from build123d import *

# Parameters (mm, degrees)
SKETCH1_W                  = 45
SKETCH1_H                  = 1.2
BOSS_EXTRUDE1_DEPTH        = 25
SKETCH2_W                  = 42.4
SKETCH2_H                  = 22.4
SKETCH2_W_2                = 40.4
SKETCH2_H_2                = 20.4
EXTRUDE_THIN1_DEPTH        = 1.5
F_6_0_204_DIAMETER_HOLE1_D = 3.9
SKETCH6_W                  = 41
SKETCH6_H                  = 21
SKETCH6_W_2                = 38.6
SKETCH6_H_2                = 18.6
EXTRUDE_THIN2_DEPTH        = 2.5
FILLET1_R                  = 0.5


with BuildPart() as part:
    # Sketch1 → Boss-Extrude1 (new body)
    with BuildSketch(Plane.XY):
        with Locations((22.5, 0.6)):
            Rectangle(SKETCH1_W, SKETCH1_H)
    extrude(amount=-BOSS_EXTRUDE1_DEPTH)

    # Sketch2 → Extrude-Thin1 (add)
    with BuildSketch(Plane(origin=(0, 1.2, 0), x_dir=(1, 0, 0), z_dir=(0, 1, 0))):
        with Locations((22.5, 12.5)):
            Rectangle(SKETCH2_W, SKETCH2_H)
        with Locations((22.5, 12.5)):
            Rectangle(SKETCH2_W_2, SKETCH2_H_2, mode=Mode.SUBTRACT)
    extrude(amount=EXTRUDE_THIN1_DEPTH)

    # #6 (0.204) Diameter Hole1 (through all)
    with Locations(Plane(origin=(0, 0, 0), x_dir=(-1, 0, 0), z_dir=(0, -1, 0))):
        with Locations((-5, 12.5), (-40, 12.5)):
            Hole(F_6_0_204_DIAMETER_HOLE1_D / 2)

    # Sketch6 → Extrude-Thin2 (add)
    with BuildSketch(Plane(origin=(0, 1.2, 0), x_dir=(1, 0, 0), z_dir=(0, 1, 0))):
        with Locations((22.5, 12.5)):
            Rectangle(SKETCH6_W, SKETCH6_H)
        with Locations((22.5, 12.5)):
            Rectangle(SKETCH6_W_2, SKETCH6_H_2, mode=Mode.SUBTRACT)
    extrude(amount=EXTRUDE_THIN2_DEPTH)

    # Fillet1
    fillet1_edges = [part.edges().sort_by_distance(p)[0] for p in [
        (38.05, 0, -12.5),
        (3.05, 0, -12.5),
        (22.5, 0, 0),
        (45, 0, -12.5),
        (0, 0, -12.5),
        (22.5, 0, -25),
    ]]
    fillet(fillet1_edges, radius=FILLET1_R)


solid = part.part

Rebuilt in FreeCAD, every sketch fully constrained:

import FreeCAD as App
import Part
import Sketcher

V = App.Vector
Q = App.Units.Quantity


def edges_at(feature, points):
    """Names of the edges that pass closest to the given points."""
    edges = feature.Shape.Edges
    near = lambda p: min(range(len(edges)), key=lambda i: edges[i].distToShape(Part.Vertex(*p))[0])
    return sorted({f"Edge{near(p) + 1}" for p in points})


def add_polygon(sketch, points):
    """Adds a closed chain of lines whose ends are joined by coincident constraints."""
    first, n = sketch.GeometryCount, len(points)
    for a, b in zip(points, points[1:] + points[:1]):
        sketch.addGeometry(Part.LineSegment(App.Vector(*a, 0), App.Vector(*b, 0)), False)
    for i in range(n):
        sketch.addConstraint(Sketcher.Constraint("Coincident", first + i, 2, first + (i + 1) % n, 1))

doc = App.newDocument("Part")
body = doc.addObject("PartDesign::Body", "Body")

# Sketch on XY plane
sketch1 = body.newObject("Sketcher::SketchObject", "Sketch")
sketch1.AttachmentSupport = (doc.getObject("XY_Plane"), [""])
sketch1.MapMode = "FlatFace"
add_polygon(sketch1, [(0, 1.2), (0, 0), (45, 0), (45, 1.2)])  # lines 0-3
sketch1.addConstraint(Sketcher.Constraint("Vertical", 0))
sketch1.addConstraint(Sketcher.Constraint("Horizontal", 1))
sketch1.addConstraint(Sketcher.Constraint("Vertical", 2))
sketch1.addConstraint(Sketcher.Constraint("Horizontal", 3))
sketch1.addConstraint(Sketcher.Constraint("Coincident", 0, 2, -1, 1))
sketch1.addConstraint(Sketcher.Constraint("DistanceX", 1, 1, 1, 2, Q("45 mm")))
sketch1.addConstraint(Sketcher.Constraint("DistanceY", 0, 2, 0, 1, Q("1.2 mm")))
pad1 = body.newObject("PartDesign::Pad", "Pad")
pad1.Profile = sketch1
pad1.Length = 25
pad1.Reversed = True

# Sketch on XZ plane
sketch2 = body.newObject("Sketcher::SketchObject", "Sketch001")
sketch2.AttachmentSupport = (doc.getObject("XZ_Plane"), [""])
sketch2.MapMode = "FlatFace"
sketch2.AttachmentOffset = App.Placement(V(0, 0, -1.2), App.Rotation())
add_polygon(sketch2, [(1, -24), (1, -1), (44, -1), (44, -24)])  # lines 0-3
add_polygon(sketch2, [(43, -2), (2, -2), (2, -23), (43, -23)])  # lines 4-7
sketch2.addConstraint(Sketcher.Constraint("Vertical", 0))
sketch2.addConstraint(Sketcher.Constraint("Horizontal", 1))
sketch2.addConstraint(Sketcher.Constraint("Vertical", 2))
sketch2.addConstraint(Sketcher.Constraint("Horizontal", 3))
sketch2.addConstraint(Sketcher.Constraint("Horizontal", 4))
sketch2.addConstraint(Sketcher.Constraint("Vertical", 5))
sketch2.addConstraint(Sketcher.Constraint("Horizontal", 6))
sketch2.addConstraint(Sketcher.Constraint("Vertical", 7))
sketch2.addConstraint(Sketcher.Constraint("DistanceX", 1, 1, 1, 2, Q("42.4 mm")))
sketch2.addConstraint(Sketcher.Constraint("DistanceX", 4, 2, 4, 1, Q("40.4 mm")))
sketch2.addConstraint(Sketcher.Constraint("DistanceY", 0, 1, 0, 2, Q("22.4 mm")))
sketch2.addConstraint(Sketcher.Constraint("DistanceY", 5, 2, 5, 1, Q("20.4 mm")))
sketch2.addConstraint(Sketcher.Constraint("DistanceX", 0, 2, 4, 2, Q("1 mm")))
sketch2.addConstraint(Sketcher.Constraint("DistanceY", 4, 2, 0, 2, Q("1 mm")))
sketch2.addConstraint(Sketcher.Constraint("DistanceX", -1, 1, 0, 2, Q("1.3 mm")))
sketch2.addConstraint(Sketcher.Constraint("DistanceY", 0, 2, -1, 1, Q("1.3 mm")))
pad2 = body.newObject("PartDesign::Pad", "Pad001")
pad2.Profile = sketch2
pad2.Length = 1.5
pad2.Reversed = True

# Sketch on XZ plane
sketch3 = body.newObject("Sketcher::SketchObject", "Sketch002")
sketch3.AttachmentSupport = (doc.getObject("XZ_Plane"), [""])
sketch3.MapMode = "FlatFace"
sketch3.addGeometry(Part.Circle(V(5, -12.5, 0), V(0, 0, 1), 1.9), False)
sketch3.addGeometry(Part.Circle(V(40, -12.5, 0), V(0, 0, 1), 1.9), False)
sketch3.addConstraint(Sketcher.Constraint("Equal", 0, 1))
sketch3.addConstraint(Sketcher.Constraint("Horizontal", 0, 3, 1, 3))
sketch3.addConstraint(Sketcher.Constraint("Diameter", 0, Q("3.9 mm")))
sketch3.addConstraint(Sketcher.Constraint("DistanceX", -1, 1, 0, 3, Q("5 mm")))
sketch3.addConstraint(Sketcher.Constraint("DistanceX", -1, 1, 1, 3, Q("40 mm")))
sketch3.addConstraint(Sketcher.Constraint("DistanceY", 0, 3, -1, 1, Q("12.5 mm")))
doc.recompute()
hole = body.newObject("PartDesign::Hole", "Hole")
hole.Profile = sketch3
hole.ThreadType = "None"
hole.Diameter = 3.9
hole.DepthType = "ThroughAll"

# Sketch on XZ plane
sketch4 = body.newObject("Sketcher::SketchObject", "Sketch003")
sketch4.AttachmentSupport = (doc.getObject("XZ_Plane"), [""])
sketch4.MapMode = "FlatFace"
sketch4.AttachmentOffset = App.Placement(V(0, 0, -1.2), App.Rotation())
add_polygon(sketch4, [(2, -23), (2, -2), (43, -2), (43, -23)])  # lines 0-3
add_polygon(sketch4, [(42, -3), (3, -3), (3, -22), (42, -22)])  # lines 4-7
sketch4.addConstraint(Sketcher.Constraint("Vertical", 0))
sketch4.addConstraint(Sketcher.Constraint("Horizontal", 1))
sketch4.addConstraint(Sketcher.Constraint("Vertical", 2))
sketch4.addConstraint(Sketcher.Constraint("Horizontal", 3))
sketch4.addConstraint(Sketcher.Constraint("Horizontal", 4))
sketch4.addConstraint(Sketcher.Constraint("Vertical", 5))
sketch4.addConstraint(Sketcher.Constraint("Horizontal", 6))
sketch4.addConstraint(Sketcher.Constraint("Vertical", 7))
sketch4.addConstraint(Sketcher.Constraint("DistanceX", 1, 1, 1, 2, Q("41 mm")))
sketch4.addConstraint(Sketcher.Constraint("DistanceY", 0, 1, 0, 2, Q("21 mm")))
sketch4.addConstraint(Sketcher.Constraint("DistanceX", 4, 2, 4, 1, Q("38.6 mm")))
sketch4.addConstraint(Sketcher.Constraint("DistanceY", 5, 2, 5, 1, Q("18.6 mm")))
sketch4.addConstraint(Sketcher.Constraint("DistanceX", -1, 1, 0, 2, Q("2 mm")))
sketch4.addConstraint(Sketcher.Constraint("DistanceY", 0, 2, -1, 1, Q("2 mm")))
sketch4.addConstraint(Sketcher.Constraint("DistanceX", -1, 1, 4, 2, Q("3.2 mm")))
sketch4.addConstraint(Sketcher.Constraint("DistanceY", 4, 2, -1, 1, Q("3.2 mm")))
pad3 = body.newObject("PartDesign::Pad", "Pad002")
pad3.Profile = sketch4
pad3.Length = 2.5
pad3.Reversed = True
doc.recompute()

fillet = body.newObject("PartDesign::Fillet", "Fillet")
fillet.Base = (pad3, edges_at(pad3, [
    (38.05, 0, -12.5),
    (3.05, 0, -12.5),
    (22.5, 0, 0),
    (45, 0, -12.5),
    (0, 0, -12.5),
    (22.5, 0, -25),
]))
fillet.Radius = 0.5

doc.recompute()
